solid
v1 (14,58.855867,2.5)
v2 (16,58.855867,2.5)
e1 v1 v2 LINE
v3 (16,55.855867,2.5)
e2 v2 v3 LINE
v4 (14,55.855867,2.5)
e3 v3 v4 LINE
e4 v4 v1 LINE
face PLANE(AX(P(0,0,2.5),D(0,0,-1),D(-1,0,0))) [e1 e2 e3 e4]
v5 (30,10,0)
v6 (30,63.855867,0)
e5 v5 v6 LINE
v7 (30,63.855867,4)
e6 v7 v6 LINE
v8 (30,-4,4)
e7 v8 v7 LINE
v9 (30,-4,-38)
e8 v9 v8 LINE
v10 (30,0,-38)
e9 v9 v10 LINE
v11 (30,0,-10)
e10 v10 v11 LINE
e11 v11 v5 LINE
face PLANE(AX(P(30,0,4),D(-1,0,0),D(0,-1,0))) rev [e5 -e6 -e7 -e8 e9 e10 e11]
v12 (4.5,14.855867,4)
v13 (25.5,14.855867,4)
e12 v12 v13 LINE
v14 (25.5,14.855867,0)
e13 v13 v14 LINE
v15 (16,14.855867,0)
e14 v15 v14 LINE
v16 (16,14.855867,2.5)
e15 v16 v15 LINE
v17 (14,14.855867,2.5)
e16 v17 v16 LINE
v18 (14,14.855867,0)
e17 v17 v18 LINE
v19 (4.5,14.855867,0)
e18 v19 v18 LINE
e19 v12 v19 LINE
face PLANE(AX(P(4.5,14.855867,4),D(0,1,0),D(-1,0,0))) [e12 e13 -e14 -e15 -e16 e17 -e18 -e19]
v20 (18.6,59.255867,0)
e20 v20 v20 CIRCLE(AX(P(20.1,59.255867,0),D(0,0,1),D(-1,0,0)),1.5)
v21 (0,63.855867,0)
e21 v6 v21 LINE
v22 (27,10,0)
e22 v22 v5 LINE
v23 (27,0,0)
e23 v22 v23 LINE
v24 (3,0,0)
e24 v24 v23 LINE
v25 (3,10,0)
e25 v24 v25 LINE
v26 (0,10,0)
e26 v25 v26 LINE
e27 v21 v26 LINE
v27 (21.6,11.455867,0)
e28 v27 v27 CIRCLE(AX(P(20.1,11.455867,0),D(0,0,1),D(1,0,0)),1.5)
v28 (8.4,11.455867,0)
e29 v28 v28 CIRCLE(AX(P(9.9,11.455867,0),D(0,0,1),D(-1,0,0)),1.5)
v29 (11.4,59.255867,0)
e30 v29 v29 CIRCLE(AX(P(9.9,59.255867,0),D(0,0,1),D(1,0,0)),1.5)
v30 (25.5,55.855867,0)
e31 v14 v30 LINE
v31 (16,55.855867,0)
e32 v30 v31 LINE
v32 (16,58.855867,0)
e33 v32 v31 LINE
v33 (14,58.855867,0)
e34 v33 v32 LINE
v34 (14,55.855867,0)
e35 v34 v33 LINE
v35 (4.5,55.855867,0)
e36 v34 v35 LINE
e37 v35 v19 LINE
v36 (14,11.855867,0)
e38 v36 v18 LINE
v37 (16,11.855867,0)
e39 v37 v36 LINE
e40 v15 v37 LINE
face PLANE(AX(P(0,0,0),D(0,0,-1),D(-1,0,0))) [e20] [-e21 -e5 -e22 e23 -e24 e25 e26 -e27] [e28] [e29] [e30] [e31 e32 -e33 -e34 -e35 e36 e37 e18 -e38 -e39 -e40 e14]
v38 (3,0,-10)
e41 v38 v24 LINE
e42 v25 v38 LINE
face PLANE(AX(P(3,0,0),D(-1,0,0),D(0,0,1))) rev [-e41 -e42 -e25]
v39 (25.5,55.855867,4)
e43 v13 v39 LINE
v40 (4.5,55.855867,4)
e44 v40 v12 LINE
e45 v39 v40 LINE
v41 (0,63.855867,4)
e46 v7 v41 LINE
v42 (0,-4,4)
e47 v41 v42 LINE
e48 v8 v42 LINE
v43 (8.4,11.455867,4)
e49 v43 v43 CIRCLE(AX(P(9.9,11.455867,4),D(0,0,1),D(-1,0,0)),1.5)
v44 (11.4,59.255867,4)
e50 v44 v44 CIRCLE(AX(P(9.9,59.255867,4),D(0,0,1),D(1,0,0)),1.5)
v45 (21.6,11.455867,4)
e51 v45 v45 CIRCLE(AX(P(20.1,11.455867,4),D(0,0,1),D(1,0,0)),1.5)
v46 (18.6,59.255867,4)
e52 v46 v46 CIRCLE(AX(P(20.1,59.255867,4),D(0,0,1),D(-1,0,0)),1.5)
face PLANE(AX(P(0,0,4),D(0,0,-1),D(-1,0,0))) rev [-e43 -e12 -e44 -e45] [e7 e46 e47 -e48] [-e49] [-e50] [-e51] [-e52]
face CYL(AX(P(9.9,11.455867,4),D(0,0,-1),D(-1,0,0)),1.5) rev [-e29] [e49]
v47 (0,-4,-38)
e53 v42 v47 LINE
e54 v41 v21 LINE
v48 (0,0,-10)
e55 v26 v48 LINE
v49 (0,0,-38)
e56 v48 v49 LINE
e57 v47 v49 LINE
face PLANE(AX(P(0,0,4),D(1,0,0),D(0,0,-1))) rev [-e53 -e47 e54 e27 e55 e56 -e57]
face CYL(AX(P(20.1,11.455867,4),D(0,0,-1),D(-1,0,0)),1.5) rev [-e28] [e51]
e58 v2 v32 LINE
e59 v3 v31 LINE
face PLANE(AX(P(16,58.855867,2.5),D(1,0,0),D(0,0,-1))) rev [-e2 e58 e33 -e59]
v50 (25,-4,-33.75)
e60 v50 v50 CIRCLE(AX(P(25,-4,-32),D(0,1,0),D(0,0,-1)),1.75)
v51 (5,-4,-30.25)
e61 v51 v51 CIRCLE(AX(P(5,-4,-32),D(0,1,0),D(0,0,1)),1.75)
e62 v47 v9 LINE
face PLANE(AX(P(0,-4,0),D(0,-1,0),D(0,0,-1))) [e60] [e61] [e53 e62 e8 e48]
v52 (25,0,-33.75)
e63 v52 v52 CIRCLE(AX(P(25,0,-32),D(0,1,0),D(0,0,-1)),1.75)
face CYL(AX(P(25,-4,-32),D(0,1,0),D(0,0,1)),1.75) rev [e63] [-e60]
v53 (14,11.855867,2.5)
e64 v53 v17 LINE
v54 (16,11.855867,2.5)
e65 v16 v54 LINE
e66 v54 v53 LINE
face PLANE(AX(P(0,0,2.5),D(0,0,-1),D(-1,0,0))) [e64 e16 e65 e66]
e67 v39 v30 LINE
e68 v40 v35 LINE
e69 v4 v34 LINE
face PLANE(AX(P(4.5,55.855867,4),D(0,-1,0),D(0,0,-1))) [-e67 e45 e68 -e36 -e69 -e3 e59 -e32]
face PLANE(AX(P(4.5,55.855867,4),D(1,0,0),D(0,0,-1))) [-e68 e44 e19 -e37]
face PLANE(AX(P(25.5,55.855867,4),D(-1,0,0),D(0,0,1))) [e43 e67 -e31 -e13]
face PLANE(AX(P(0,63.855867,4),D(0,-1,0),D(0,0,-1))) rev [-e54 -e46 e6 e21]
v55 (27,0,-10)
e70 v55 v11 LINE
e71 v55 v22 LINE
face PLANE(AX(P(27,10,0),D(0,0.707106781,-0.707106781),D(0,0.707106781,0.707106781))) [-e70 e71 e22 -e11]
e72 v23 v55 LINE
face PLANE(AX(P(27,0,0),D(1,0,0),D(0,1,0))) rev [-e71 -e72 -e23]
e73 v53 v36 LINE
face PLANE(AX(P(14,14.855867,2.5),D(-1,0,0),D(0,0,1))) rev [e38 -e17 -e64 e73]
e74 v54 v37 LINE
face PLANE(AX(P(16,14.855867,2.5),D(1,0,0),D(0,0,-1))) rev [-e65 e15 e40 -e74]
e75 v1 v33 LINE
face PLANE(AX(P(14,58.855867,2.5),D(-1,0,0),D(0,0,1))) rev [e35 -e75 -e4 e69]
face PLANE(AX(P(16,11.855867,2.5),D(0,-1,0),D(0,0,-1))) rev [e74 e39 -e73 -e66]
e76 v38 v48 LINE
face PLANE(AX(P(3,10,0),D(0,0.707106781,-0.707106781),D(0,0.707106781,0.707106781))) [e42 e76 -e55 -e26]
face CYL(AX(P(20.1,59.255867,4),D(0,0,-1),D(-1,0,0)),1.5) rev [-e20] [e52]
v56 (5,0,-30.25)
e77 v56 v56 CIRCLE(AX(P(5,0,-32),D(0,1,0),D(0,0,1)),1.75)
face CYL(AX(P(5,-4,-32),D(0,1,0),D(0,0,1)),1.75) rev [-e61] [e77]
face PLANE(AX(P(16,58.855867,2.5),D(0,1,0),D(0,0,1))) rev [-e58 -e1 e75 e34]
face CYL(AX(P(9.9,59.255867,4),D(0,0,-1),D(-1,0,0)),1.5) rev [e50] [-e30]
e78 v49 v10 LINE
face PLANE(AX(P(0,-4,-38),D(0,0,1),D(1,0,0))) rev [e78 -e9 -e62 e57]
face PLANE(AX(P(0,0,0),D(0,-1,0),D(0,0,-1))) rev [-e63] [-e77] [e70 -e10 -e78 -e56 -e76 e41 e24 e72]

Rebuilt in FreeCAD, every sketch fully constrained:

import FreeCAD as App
import Part
import Sketcher
from FreeCAD import Vector
Q = App.Units.Quantity

doc = App.newDocument("Part")
body = doc.addObject("PartDesign::Body", "Body")

sketch1 = doc.addObject("Sketcher::SketchObject", "Sketch")
body.addObject(sketch1)
sketch1.AttachmentSupport = (doc.XY_Plane, [""])
sketch1.MapMode = "FlatFace"
sketch1.addGeometry(Part.LineSegment(Vector(0, 63.9, 0), Vector(0, 0, 0)), False)
sketch1.addGeometry(Part.LineSegment(Vector(0, 0, 0), Vector(30, 0, 0)), False)
sketch1.addGeometry(Part.LineSegment(Vector(30, 0, 0), Vector(30, 63.9, 0)), False)
sketch1.addGeometry(Part.LineSegment(Vector(30, 63.9, 0), Vector(0, 63.9, 0)), False)
sketch1.addGeometry(Part.Circle(Vector(9.9, 11.5, 0), Vector(0, 0, 1), 1.5), False)
sketch1.addGeometry(Part.Circle(Vector(20.1, 11.5, 0), Vector(0, 0, 1), 1.5), False)
sketch1.addGeometry(Part.Circle(Vector(9.9, 59.3, 0), Vector(0, 0, 1), 1.5), False)
sketch1.addGeometry(Part.LineSegment(Vector(25.5, 14.9, 0), Vector(4.5, 14.9, 0)), False)
sketch1.addGeometry(Part.LineSegment(Vector(4.5, 14.9, 0), Vector(4.5, 55.9, 0)), False)
sketch1.addGeometry(Part.LineSegment(Vector(4.5, 55.9, 0), Vector(25.5, 55.9, 0)), False)
sketch1.addGeometry(Part.LineSegment(Vector(25.5, 55.9, 0), Vector(25.5, 14.9, 0)), False)
sketch1.addGeometry(Part.Circle(Vector(20.1, 59.3, 0), Vector(0, 0, 1), 1.5), False)
sketch1.addConstraint(Sketcher.Constraint("Coincident", 0, 2, 1, 1))
sketch1.addConstraint(Sketcher.Constraint("Coincident", 1, 2, 2, 1))
sketch1.addConstraint(Sketcher.Constraint("Coincident", 2, 2, 3, 1))
sketch1.addConstraint(Sketcher.Constraint("Coincident", 3, 2, 0, 1))
sketch1.addConstraint(Sketcher.Constraint("Coincident", 7, 2, 8, 1))
sketch1.addConstraint(Sketcher.Constraint("Coincident", 8, 2, 9, 1))
sketch1.addConstraint(Sketcher.Constraint("Coincident", 9, 2, 10, 1))
sketch1.addConstraint(Sketcher.Constraint("Coincident", 10, 2, 7, 1))
sketch1.addConstraint(Sketcher.Constraint("Vertical", 0))
sketch1.addConstraint(Sketcher.Constraint("Horizontal", 1))
sketch1.addConstraint(Sketcher.Constraint("Vertical", 2))
sketch1.addConstraint(Sketcher.Constraint("Horizontal", 3))
sketch1.addConstraint(Sketcher.Constraint("Horizontal", 7))
sketch1.addConstraint(Sketcher.Constraint("Vertical", 8))
sketch1.addConstraint(Sketcher.Constraint("Horizontal", 9))
sketch1.addConstraint(Sketcher.Constraint("Vertical", 10))
sketch1.addConstraint(Sketcher.Constraint("Coincident", 0, 2, -1, 1))
sketch1.addConstraint(Sketcher.Constraint("Equal", 4, 5))
sketch1.addConstraint(Sketcher.Constraint("Equal", 5, 6))
sketch1.addConstraint(Sketcher.Constraint("Equal", 6, 11))
sketch1.addConstraint(Sketcher.Constraint("Horizontal", 4, 3, 5, 3))
sketch1.addConstraint(Sketcher.Constraint("Horizontal", 6, 3, 11, 3))
sketch1.addConstraint(Sketcher.Constraint("Vertical", 4, 3, 6, 3))
sketch1.addConstraint(Sketcher.Constraint("Vertical", 5, 3, 11, 3))
sketch1.addConstraint(Sketcher.Constraint("Diameter", 4, Q("3 mm")))
sketch1.addConstraint(Sketcher.Constraint("DistanceX", 1, 1, 1, 2, Q("30 mm")))
sketch1.addConstraint(Sketcher.Constraint("DistanceX", 7, 2, 7, 1, Q("21 mm")))
sketch1.addConstraint(Sketcher.Constraint("DistanceY", 8, 1, 8, 2, Q("41 mm")))
sketch1.addConstraint(Sketcher.Constraint("DistanceY", 8, 2, 3, 2, Q("8 mm")))
sketch1.addConstraint(Sketcher.Constraint("DistanceX", -1, 1, 4, 3, Q("9.9 mm")))
sketch1.addConstraint(Sketcher.Constraint("DistanceX", -1, 1, 5, 3, Q("20.1 mm")))
sketch1.addConstraint(Sketcher.Constraint("DistanceX", -1, 1, 7, 2, Q("4.5 mm")))
sketch1.addConstraint(Sketcher.Constraint("DistanceY", 4, 3, 6, 3, Q("47.8 mm")))
sketch1.addConstraint(Sketcher.Constraint("DistanceY", 11, 3, 2, 2, Q("4.6 mm")))
sketch1.addConstraint(Sketcher.Constraint("DistanceY", 0, 2, 0, 1, Q("63.855867 mm")))
pad1 = doc.addObject("PartDesign::Pad", "Pad")
body.addObject(pad1)
pad1.Profile = sketch1
pad1.Length = 4

sketch2 = doc.addObject("Sketcher::SketchObject", "Sketch001")
body.addObject(sketch2)
sketch2.AttachmentSupport = (doc.XY_Plane, [""])
sketch2.MapMode = "FlatFace"
sketch2.addGeometry(Part.LineSegment(Vector(16, 58.9, 0), Vector(16, 55.9, 0)), False)
sketch2.addGeometry(Part.LineSegment(Vector(16, 55.9, 0), Vector(14, 55.9, 0)), False)
sketch2.addGeometry(Part.LineSegment(Vector(14, 55.9, 0), Vector(14, 58.9, 0)), False)
sketch2.addGeometry(Part.LineSegment(Vector(14, 58.9, 0), Vector(16, 58.9, 0)), False)
sketch2.addGeometry(Part.LineSegment(Vector(16, 14.9, 0), Vector(16, 11.9, 0)), False)
sketch2.addGeometry(Part.LineSegment(Vector(16, 11.9, 0), Vector(14, 11.9, 0)), False)
sketch2.addGeometry(Part.LineSegment(Vector(14, 11.9, 0), Vector(14, 14.9, 0)), False)
sketch2.addGeometry(Part.LineSegment(Vector(14, 14.9, 0), Vector(16, 14.9, 0)), False)
sketch2.addConstraint(Sketcher.Constraint("Coincident", 0, 2, 1, 1))
sketch2.addConstraint(Sketcher.Constraint("Coincident", 1, 2, 2, 1))
sketch2.addConstraint(Sketcher.Constraint("Coincident", 2, 2, 3, 1))
sketch2.addConstraint(Sketcher.Constraint("Coincident", 3, 2, 0, 1))
sketch2.addConstraint(Sketcher.Constraint("Coincident", 4, 2, 5, 1))
sketch2.addConstraint(Sketcher.Constraint("Coincident", 5, 2, 6, 1))
sketch2.addConstraint(Sketcher.Constraint("Coincident", 6, 2, 7, 1))
sketch2.addConstraint(Sketcher.Constraint("Coincident", 7, 2, 4, 1))
sketch2.addConstraint(Sketcher.Constraint("Vertical", 0))
sketch2.addConstraint(Sketcher.Constraint("Horizontal", 1))
sketch2.addConstraint(Sketcher.Constraint("Vertical", 2))
sketch2.addConstraint(Sketcher.Constraint("Horizontal", 3))
sketch2.addConstraint(Sketcher.Constraint("Vertical", 4))
sketch2.addConstraint(Sketcher.Constraint("Horizontal", 5))
sketch2.addConstraint(Sketcher.Constraint("Vertical", 6))
sketch2.addConstraint(Sketcher.Constraint("Horizontal", 7))
sketch2.addConstraint(Sketcher.Constraint("Vertical", 3, 2, 4, 2))
sketch2.addConstraint(Sketcher.Constraint("Vertical", 2, 2, 5, 2))
sketch2.addConstraint(Sketcher.Constraint("Equal", 2, 4))
sketch2.addConstraint(Sketcher.Constraint("DistanceX", 1, 2, 1, 1, Q("2 mm")))
sketch2.addConstraint(Sketcher.Constraint("DistanceY", 0, 2, 0, 1, Q("3 mm")))
sketch2.addConstraint(Sketcher.Constraint("DistanceX", -1, 1, 0, 2, Q("16 mm")))
sketch2.addConstraint(Sketcher.Constraint("DistanceY", 4, 2, 0, 2, Q("44 mm")))
sketch2.addConstraint(Sketcher.Constraint("DistanceY", -1, 1, 0, 2, Q("55.855867 mm")))
pocket1 = doc.addObject("PartDesign::Pocket", "Pocket")
body.addObject(pocket1)
pocket1.Profile = sketch2
pocket1.Length = 2.5
pocket1.Reversed = True

sketch3 = doc.addObject("Sketcher::SketchObject", "Sketch002")
body.addObject(sketch3)
sketch3.AttachmentSupport = (doc.XZ_Plane, [""])
sketch3.MapMode = "FlatFace"
sketch3.addGeometry(Part.LineSegment(Vector(0, 4, 0), Vector(0, -38, 0)), False)
sketch3.addGeometry(Part.LineSegment(Vector(0, -38, 0), Vector(30, -38, 0)), False)
sketch3.addGeometry(Part.LineSegment(Vector(30, -38, 0), Vector(30, 4, 0)), False)
sketch3.addGeometry(Part.LineSegment(Vector(30, 4, 0), Vector(0, 4, 0)), False)
sketch3.addConstraint(Sketcher.Constraint("Coincident", 0, 2, 1, 1))
sketch3.addConstraint(Sketcher.Constraint("Coincident", 1, 2, 2, 1))
sketch3.addConstraint(Sketcher.Constraint("Coincident", 2, 2, 3, 1))
sketch3.addConstraint(Sketcher.Constraint("Coincident", 3, 2, 0, 1))
sketch3.addConstraint(Sketcher.Constraint("Vertical", 0))
sketch3.addConstraint(Sketcher.Constraint("Horizontal", 1))
sketch3.addConstraint(Sketcher.Constraint("Vertical", 2))
sketch3.addConstraint(Sketcher.Constraint("Horizontal", 3))
sketch3.addConstraint(Sketcher.Constraint("PointOnObject", 0, 2, -2))
sketch3.addConstraint(Sketcher.Constraint("DistanceX", 1, 1, 1, 2, Q("30 mm")))
sketch3.addConstraint(Sketcher.Constraint("DistanceY", 0, 2, 0, 1, Q("42 mm")))
sketch3.addConstraint(Sketcher.Constraint("DistanceY", 0, 2, -1, 1, Q("38 mm")))
pad2 = doc.addObject("PartDesign::Pad", "Pad001")
body.addObject(pad2)
pad2.Profile = sketch3
pad2.Length = 4

sketch4 = doc.addObject("Sketcher::SketchObject", "Sketch003")
body.addObject(sketch4)
sketch4.AttachmentSupport = (doc.XZ_Plane, [""])
sketch4.MapMode = "FlatFace"
sketch4.addGeometry(Part.Circle(Vector(5, -32, 0), Vector(0, 0, 1), 1.8), False)
sketch4.addGeometry(Part.Circle(Vector(25, -32, 0), Vector(0, 0, 1), 1.8), False)
sketch4.addConstraint(Sketcher.Constraint("Equal", 0, 1))
sketch4.addConstraint(Sketcher.Constraint("Horizontal", 0, 3, 1, 3))
sketch4.addConstraint(Sketcher.Constraint("Diameter", 0, Q("3.5 mm")))
sketch4.addConstraint(Sketcher.Constraint("DistanceX", -1, 1, 0, 3, Q("5 mm")))
sketch4.addConstraint(Sketcher.Constraint("DistanceY", 0, 3, -1, 1, Q("32 mm")))
sketch4.addConstraint(Sketcher.Constraint("DistanceX", -1, 1, 1, 3, Q("25 mm")))
pocket2 = doc.addObject("PartDesign::Pocket", "Pocket001")
body.addObject(pocket2)
pocket2.Profile = sketch4
pocket2.Type = "ThroughAll"
pocket2.Reversed = True

sketch5 = doc.addObject("Sketcher::SketchObject", "Sketch004")
body.addObject(sketch5)
sketch5.AttachmentSupport = (doc.YZ_Plane, [""])
sketch5.MapMode = "FlatFace"
sketch5.AttachmentOffset = App.Placement(Vector(0, 0, 30), App.Rotation())
sketch5.addGeometry(Part.LineSegment(Vector(0, -10, 0), Vector(10, 0, 0)), False)
sketch5.addGeometry(Part.LineSegment(Vector(10, 0, 0), Vector(0, 0, 0)), False)
sketch5.addGeometry(Part.LineSegment(Vector(0, 0, 0), Vector(0, -10, 0)), False)
sketch5.addConstraint(Sketcher.Constraint("Coincident", 0, 2, 1, 1))
sketch5.addConstraint(Sketcher.Constraint("Coincident", 1, 2, 2, 1))
sketch5.addConstraint(Sketcher.Constraint("Coincident", 2, 2, 0, 1))
sketch5.addConstraint(Sketcher.Constraint("Horizontal", 1))
sketch5.addConstraint(Sketcher.Constraint("Vertical", 2))
sketch5.addConstraint(Sketcher.Constraint("Coincident", 1, 2, -1, 1))
sketch5.addConstraint(Sketcher.Constraint("Equal", 1, 2))
sketch5.addConstraint(Sketcher.Constraint("DistanceX", 1, 2, 1, 1, Q("10 mm")))
pad3 = doc.addObject("PartDesign::Pad", "Pad002")
body.addObject(pad3)
pad3.Profile = sketch5
pad3.Length = 3
pad3.Reversed = True

sketch6 = doc.addObject("Sketcher::SketchObject", "Sketch005")
body.addObject(sketch6)
sketch6.AttachmentSupport = (doc.YZ_Plane, [""])
sketch6.MapMode = "FlatFace"
sketch6.addGeometry(Part.LineSegment(Vector(0, 0, 0), Vector(10, 0, 0)), False)
sketch6.addGeometry(Part.LineSegment(Vector(10, 0, 0), Vector(0, -10, 0)), False)
sketch6.addGeometry(Part.LineSegment(Vector(0, -10, 0), Vector(0, 0, 0)), False)
sketch6.addConstraint(Sketcher.Constraint("Coincident", 0, 2, 1, 1))
sketch6.addConstraint(Sketcher.Constraint("Coincident", 1, 2, 2, 1))
sketch6.addConstraint(Sketcher.Constraint("Coincident", 2, 2, 0, 1))
sketch6.addConstraint(Sketcher.Constraint("Horizontal", 0))
sketch6.addConstraint(Sketcher.Constraint("Vertical", 2))
sketch6.addConstraint(Sketcher.Constraint("Coincident", 2, 2, -1, 1))
sketch6.addConstraint(Sketcher.Constraint("Equal", 0, 2))
sketch6.addConstraint(Sketcher.Constraint("DistanceX", 0, 1, 0, 2, Q("10 mm")))
pad4 = doc.addObject("PartDesign::Pad", "Pad003")
body.addObject(pad4)
pad4.Profile = sketch6
pad4.Length = 3

doc.recompute()
